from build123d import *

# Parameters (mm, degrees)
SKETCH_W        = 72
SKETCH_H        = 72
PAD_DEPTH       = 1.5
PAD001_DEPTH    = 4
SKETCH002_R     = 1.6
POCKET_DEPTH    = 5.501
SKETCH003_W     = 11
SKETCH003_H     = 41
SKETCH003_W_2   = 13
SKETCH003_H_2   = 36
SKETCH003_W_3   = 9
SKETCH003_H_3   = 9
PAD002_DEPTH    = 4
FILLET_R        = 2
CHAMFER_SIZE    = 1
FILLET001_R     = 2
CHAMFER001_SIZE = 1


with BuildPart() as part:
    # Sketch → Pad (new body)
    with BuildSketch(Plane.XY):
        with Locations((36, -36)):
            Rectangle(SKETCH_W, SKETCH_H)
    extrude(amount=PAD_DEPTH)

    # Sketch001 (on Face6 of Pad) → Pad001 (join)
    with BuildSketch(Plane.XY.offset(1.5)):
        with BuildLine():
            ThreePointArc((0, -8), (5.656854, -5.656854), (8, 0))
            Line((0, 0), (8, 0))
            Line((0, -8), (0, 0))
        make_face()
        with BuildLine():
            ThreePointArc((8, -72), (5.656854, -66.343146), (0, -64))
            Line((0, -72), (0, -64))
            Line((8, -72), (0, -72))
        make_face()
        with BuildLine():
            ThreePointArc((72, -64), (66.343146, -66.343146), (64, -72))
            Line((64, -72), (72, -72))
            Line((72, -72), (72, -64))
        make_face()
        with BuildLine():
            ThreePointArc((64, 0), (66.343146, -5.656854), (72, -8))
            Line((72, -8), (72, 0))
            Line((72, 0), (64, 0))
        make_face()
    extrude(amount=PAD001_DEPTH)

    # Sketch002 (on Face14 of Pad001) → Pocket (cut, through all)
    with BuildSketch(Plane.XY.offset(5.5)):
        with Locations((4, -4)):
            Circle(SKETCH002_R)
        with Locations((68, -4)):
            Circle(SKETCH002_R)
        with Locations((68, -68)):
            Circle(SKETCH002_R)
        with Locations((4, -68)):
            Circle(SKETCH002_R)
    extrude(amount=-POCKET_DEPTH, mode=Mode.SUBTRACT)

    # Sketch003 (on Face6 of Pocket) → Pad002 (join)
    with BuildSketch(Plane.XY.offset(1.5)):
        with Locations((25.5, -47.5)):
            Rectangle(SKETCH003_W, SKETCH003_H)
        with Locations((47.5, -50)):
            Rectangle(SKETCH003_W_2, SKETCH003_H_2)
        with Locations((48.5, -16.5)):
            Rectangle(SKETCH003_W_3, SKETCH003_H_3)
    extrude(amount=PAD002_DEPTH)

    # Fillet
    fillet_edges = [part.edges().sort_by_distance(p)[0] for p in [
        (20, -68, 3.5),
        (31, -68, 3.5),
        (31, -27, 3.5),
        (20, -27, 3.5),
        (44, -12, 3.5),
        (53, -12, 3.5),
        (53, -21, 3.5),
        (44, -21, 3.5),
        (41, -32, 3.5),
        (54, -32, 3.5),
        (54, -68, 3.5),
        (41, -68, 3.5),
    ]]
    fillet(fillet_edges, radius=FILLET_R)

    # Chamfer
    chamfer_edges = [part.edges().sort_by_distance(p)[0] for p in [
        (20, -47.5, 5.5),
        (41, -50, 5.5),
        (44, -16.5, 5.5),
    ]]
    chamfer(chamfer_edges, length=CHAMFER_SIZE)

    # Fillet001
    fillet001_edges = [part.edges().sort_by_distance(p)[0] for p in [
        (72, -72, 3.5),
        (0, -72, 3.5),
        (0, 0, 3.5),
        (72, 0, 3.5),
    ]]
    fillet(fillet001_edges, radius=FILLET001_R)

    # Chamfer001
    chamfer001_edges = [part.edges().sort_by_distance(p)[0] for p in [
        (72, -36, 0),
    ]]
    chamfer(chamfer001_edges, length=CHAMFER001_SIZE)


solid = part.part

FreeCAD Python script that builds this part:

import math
import FreeCAD as App
import Part
import Sketcher
from FreeCAD import Vector


def edges_at(feature, points):
    """Names of the edges that pass closest to the given points."""
    edges = feature.Shape.Edges
    near = lambda p: min(range(len(edges)), key=lambda i: edges[i].distToShape(Part.Vertex(*p))[0])
    return sorted({f"Edge{near(p) + 1}" for p in points})

doc = App.newDocument("Part")
body = doc.addObject("PartDesign::Body", "Body")

sketch1 = body.newObject("Sketcher::SketchObject", "Sketch")
sketch1.AttachmentSupport = (doc.getObject("XY_Plane"), [""])
sketch1.MapMode = "FlatFace"
sketch1.addGeometry(Part.LineSegment(Vector(0, 0, 0), Vector(0, -72, 0)), False)
sketch1.addGeometry(Part.LineSegment(Vector(0, -72, 0), Vector(72, -72, 0)), False)
sketch1.addGeometry(Part.LineSegment(Vector(72, -72, 0), Vector(72, 0, 0)), False)
sketch1.addGeometry(Part.LineSegment(Vector(72, 0, 0), Vector(0, 0, 0)), False)
sketch1.addConstraint(Sketcher.Constraint("Coincident", 0, 2, 1, 1))
sketch1.addConstraint(Sketcher.Constraint("Coincident", 1, 2, 2, 1))
sketch1.addConstraint(Sketcher.Constraint("Coincident", 2, 2, 3, 1))
sketch1.addConstraint(Sketcher.Constraint("Coincident", 3, 2, 0, 1))
sketch1.addConstraint(Sketcher.Constraint("Vertical", 0))
sketch1.addConstraint(Sketcher.Constraint("Horizontal", 1))
sketch1.addConstraint(Sketcher.Constraint("Vertical", 2))
sketch1.addConstraint(Sketcher.Constraint("Horizontal", 3))
sketch1.addConstraint(Sketcher.Constraint("Coincident", 3, 2, -1, 1))
sketch1.addConstraint(Sketcher.Constraint("Equal", 3, 0))
sketch1.addConstraint(Sketcher.Constraint("DistanceX", 1, 1, 1, 2, 72.0))
pad1 = body.newObject("PartDesign::Pad", "Pad")
pad1.Profile = sketch1
pad1.Length = 1.5

sketch2 = body.newObject("Sketcher::SketchObject", "Sketch001")
sketch2.AttachmentSupport = (doc.getObject("XY_Plane"), [""])
sketch2.MapMode = "FlatFace"
sketch2.AttachmentOffset = App.Placement(Vector(0, 0, 1.5), App.Rotation())
sketch2.addGeometry(Part.ArcOfCircle(Part.Circle(Vector(-0.000001, 0.000001, 0), Vector(0, 0, 1), 8.000001), math.radians(-89.999994), math.radians(-0.000006)), False)
sketch2.addGeometry(Part.LineSegment(Vector(8, 0, 0), Vector(0, 0, 0)), False)
sketch2.addGeometry(Part.LineSegment(Vector(0, 0, 0), Vector(0, -8, 0)), False)
sketch2.addGeometry(Part.ArcOfCircle(Part.Circle(Vector(-0.000001, -72.000001, 0), Vector(0, 0, 1), 8.000001), math.radians(0.000006), math.radians(89.999994)), False)
sketch2.addGeometry(Part.LineSegment(Vector(0, -64, 0), Vector(0, -72, 0)), False)
sketch2.addGeometry(Part.LineSegment(Vector(0, -72, 0), Vector(8, -72, 0)), False)
sketch2.addGeometry(Part.ArcOfCircle(Part.Circle(Vector(72.000001, -72.000001, 0), Vector(0, 0, 1), 8.000001), math.radians(90.000006), math.radians(179.999994)), False)
sketch2.addGeometry(Part.LineSegment(Vector(64, -72, 0), Vector(72, -72, 0)), False)
sketch2.addGeometry(Part.LineSegment(Vector(72, -72, 0), Vector(72, -64, 0)), False)
sketch2.addGeometry(Part.ArcOfCircle(Part.Circle(Vector(72.000001, 0.000001, 0), Vector(0, 0, 1), 8.000001), math.radians(-179.999994), math.radians(-90.000006)), False)
sketch2.addGeometry(Part.LineSegment(Vector(72, -8, 0), Vector(72, 0, 0)), False)
sketch2.addGeometry(Part.LineSegment(Vector(72, 0, 0), Vector(64, 0, 0)), False)
sketch2.addConstraint(Sketcher.Constraint("Coincident", 0, 2, 1, 1))
sketch2.addConstraint(Sketcher.Constraint("Coincident", 1, 2, 2, 1))
sketch2.addConstraint(Sketcher.Constraint("Coincident", 2, 2, 0, 1))
sketch2.addConstraint(Sketcher.Constraint("Coincident", 3, 2, 4, 1))
sketch2.addConstraint(Sketcher.Constraint("Coincident", 4, 2, 5, 1))
sketch2.addConstraint(Sketcher.Constraint("Coincident", 5, 2, 3, 1))
sketch2.addConstraint(Sketcher.Constraint("Coincident", 6, 2, 7, 1))
sketch2.addConstraint(Sketcher.Constraint("Coincident", 7, 2, 8, 1))
sketch2.addConstraint(Sketcher.Constraint("Coincident", 8, 2, 6, 1))
sketch2.addConstraint(Sketcher.Constraint("Coincident", 9, 2, 10, 1))
sketch2.addConstraint(Sketcher.Constraint("Coincident", 10, 2, 11, 1))
sketch2.addConstraint(Sketcher.Constraint("Coincident", 11, 2, 9, 1))
sketch2.addConstraint(Sketcher.Constraint("Horizontal", 1))
sketch2.addConstraint(Sketcher.Constraint("Vertical", 2))
sketch2.addConstraint(Sketcher.Constraint("Vertical", 4))
sketch2.addConstraint(Sketcher.Constraint("Horizontal", 5))
sketch2.addConstraint(Sketcher.Constraint("Horizontal", 7))
sketch2.addConstraint(Sketcher.Constraint("Vertical", 8))
sketch2.addConstraint(Sketcher.Constraint("Vertical", 10))
sketch2.addConstraint(Sketcher.Constraint("Horizontal", 11))
sketch2.addConstraint(Sketcher.Constraint("Coincident", 0, 3, -1, 1))
sketch2.addConstraint(Sketcher.Constraint("Coincident", 1, 2, -1, 1))
sketch2.addConstraint(Sketcher.Constraint("Coincident", 4, 2, 3, 3))
sketch2.addConstraint(Sketcher.Constraint("Coincident", 7, 2, 6, 3))
sketch2.addConstraint(Sketcher.Constraint("Coincident", 10, 2, 9, 3))
sketch2.addConstraint(Sketcher.Constraint("Equal", 0, 3))
sketch2.addConstraint(Sketcher.Constraint("Equal", 3, 6))
sketch2.addConstraint(Sketcher.Constraint("Equal", 6, 9))
sketch2.addConstraint(Sketcher.Constraint("PointOnObject", 3, 3, -2))
sketch2.addConstraint(Sketcher.Constraint("PointOnObject", 9, 3, -1))
sketch2.addConstraint(Sketcher.Constraint("Horizontal", 3, 3, 6, 3))
sketch2.addConstraint(Sketcher.Constraint("Vertical", 6, 3, 9, 3))
sketch2.addConstraint(Sketcher.Constraint("Radius", 0, 8.000001))
sketch2.addConstraint(Sketcher.Constraint("DistanceY", 3, 3, -1, 1, 72.000001))
sketch2.addConstraint(Sketcher.Constraint("DistanceX", -1, 1, 6, 3, 72.000001))
pad2 = body.newObject("PartDesign::Pad", "Pad001")
pad2.Profile = sketch2
pad2.Length = 4

sketch3 = body.newObject("Sketcher::SketchObject", "Sketch002")
sketch3.AttachmentSupport = (doc.getObject("XY_Plane"), [""])
sketch3.MapMode = "FlatFace"
sketch3.AttachmentOffset = App.Placement(Vector(0, 0, 5.5), App.Rotation())
sketch3.addGeometry(Part.Circle(Vector(4, -4, 0), Vector(0, 0, 1), 1.6), False)
sketch3.addGeometry(Part.Circle(Vector(68, -4, 0), Vector(0, 0, 1), 1.6), False)
sketch3.addGeometry(Part.Circle(Vector(68, -68, 0), Vector(0, 0, 1), 1.6), False)
sketch3.addGeometry(Part.Circle(Vector(4, -68, 0), Vector(0, 0, 1), 1.6), False)
sketch3.addConstraint(Sketcher.Constraint("Equal", 0, 1))
sketch3.addConstraint(Sketcher.Constraint("Equal", 1, 2))
sketch3.addConstraint(Sketcher.Constraint("Equal", 2, 3))
sketch3.addConstraint(Sketcher.Constraint("Horizontal", 0, 3, 1, 3))
sketch3.addConstraint(Sketcher.Constraint("Horizontal", 2, 3, 3, 3))
sketch3.addConstraint(Sketcher.Constraint("Vertical", 1, 3, 2, 3))
sketch3.addConstraint(Sketcher.Constraint("Vertical", 0, 3, 3, 3))
sketch3.addConstraint(Sketcher.Constraint("Diameter", 0, 3.2))
sketch3.addConstraint(Sketcher.Constraint("DistanceX", -1, 1, 0, 3, 4.0))
sketch3.addConstraint(Sketcher.Constraint("DistanceY", 0, 3, -1, 1, 4.0))
sketch3.addConstraint(Sketcher.Constraint("DistanceX", -1, 1, 1, 3, 68.0))
sketch3.addConstraint(Sketcher.Constraint("DistanceY", 2, 3, -1, 1, 68.0))
pocket1 = body.newObject("PartDesign::Pocket", "Pocket")
pocket1.Profile = sketch3
pocket1.Type = "ThroughAll"

sketch4 = body.newObject("Sketcher::SketchObject", "Sketch003")
sketch4.AttachmentSupport = (doc.getObject("XY_Plane"), [""])
sketch4.MapMode = "FlatFace"
sketch4.AttachmentOffset = App.Placement(Vector(0, 0, 1.5), App.Rotation())
sketch4.addGeometry(Part.LineSegment(Vector(20, -27, 0), Vector(20, -68, 0)), False)
sketch4.addGeometry(Part.LineSegment(Vector(20, -68, 0), Vector(31, -68, 0)), False)
sketch4.addGeometry(Part.LineSegment(Vector(31, -68, 0), Vector(31, -27, 0)), False)
sketch4.addGeometry(Part.LineSegment(Vector(31, -27, 0), Vector(20, -27, 0)), False)
sketch4.addGeometry(Part.LineSegment(Vector(41, -32, 0), Vector(41, -68, 0)), False)
sketch4.addGeometry(Part.LineSegment(Vector(41, -68, 0), Vector(54, -68, 0)), False)
sketch4.addGeometry(Part.LineSegment(Vector(54, -68, 0), Vector(54, -32, 0)), False)
sketch4.addGeometry(Part.LineSegment(Vector(54, -32, 0), Vector(41, -32, 0)), False)
sketch4.addGeometry(Part.LineSegment(Vector(44, -12, 0), Vector(44, -21, 0)), False)
sketch4.addGeometry(Part.LineSegment(Vector(44, -21, 0), Vector(53, -21, 0)), False)
sketch4.addGeometry(Part.LineSegment(Vector(53, -21, 0), Vector(53, -12, 0)), False)
sketch4.addGeometry(Part.LineSegment(Vector(53, -12, 0), Vector(44, -12, 0)), False)
sketch4.addConstraint(Sketcher.Constraint("Coincident", 0, 2, 1, 1))
sketch4.addConstraint(Sketcher.Constraint("Coincident", 1, 2, 2, 1))
sketch4.addConstraint(Sketcher.Constraint("Coincident", 2, 2, 3, 1))
sketch4.addConstraint(Sketcher.Constraint("Coincident", 3, 2, 0, 1))
sketch4.addConstraint(Sketcher.Constraint("Coincident", 4, 2, 5, 1))
sketch4.addConstraint(Sketcher.Constraint("Coincident", 5, 2, 6, 1))
sketch4.addConstraint(Sketcher.Constraint("Coincident", 6, 2, 7, 1))
sketch4.addConstraint(Sketcher.Constraint("Coincident", 7, 2, 4, 1))
sketch4.addConstraint(Sketcher.Constraint("Coincident", 8, 2, 9, 1))
sketch4.addConstraint(Sketcher.Constraint("Coincident", 9, 2, 10, 1))
sketch4.addConstraint(Sketcher.Constraint("Coincident", 10, 2, 11, 1))
sketch4.addConstraint(Sketcher.Constraint("Coincident", 11, 2, 8, 1))
sketch4.addConstraint(Sketcher.Constraint("Vertical", 0))
sketch4.addConstraint(Sketcher.Constraint("Horizontal", 1))
sketch4.addConstraint(Sketcher.Constraint("Vertical", 2))
sketch4.addConstraint(Sketcher.Constraint("Horizontal", 3))
sketch4.addConstraint(Sketcher.Constraint("Vertical", 4))
sketch4.addConstraint(Sketcher.Constraint("Horizontal", 5))
sketch4.addConstraint(Sketcher.Constraint("Vertical", 6))
sketch4.addConstraint(Sketcher.Constraint("Horizontal", 7))
sketch4.addConstraint(Sketcher.Constraint("Vertical", 8))
sketch4.addConstraint(Sketcher.Constraint("Horizontal", 9))
sketch4.addConstraint(Sketcher.Constraint("Vertical", 10))
sketch4.addConstraint(Sketcher.Constraint("Horizontal", 11))
sketch4.addConstraint(Sketcher.Constraint("Horizontal", 1, 2, 4, 2))
sketch4.addConstraint(Sketcher.Constraint("Equal", 11, 8))
sketch4.addConstraint(Sketcher.Constraint("DistanceX", 1, 1, 1, 2, 11.0))
sketch4.addConstraint(Sketcher.Constraint("DistanceX", 5, 1, 5, 2, 13.0))
sketch4.addConstraint(Sketcher.Constraint("DistanceX", 9, 1, 9, 2, 9.0))
sketch4.addConstraint(Sketcher.Constraint("DistanceY", 0, 2, 0, 1, 41.0))
sketch4.addConstraint(Sketcher.Constraint("DistanceY", 4, 2, 4, 1, 36.0))
sketch4.addConstraint(Sketcher.Constraint("DistanceX", -1, 1, 0, 2, 20.0))
sketch4.addConstraint(Sketcher.Constraint("DistanceY", 0, 2, -1, 1, 68.0))
sketch4.addConstraint(Sketcher.Constraint("DistanceX", -1, 1, 4, 2, 41.0))
sketch4.addConstraint(Sketcher.Constraint("DistanceX", -1, 1, 8, 2, 44.0))
sketch4.addConstraint(Sketcher.Constraint("DistanceY", 8, 2, -1, 1, 21.0))
pad3 = body.newObject("PartDesign::Pad", "Pad002")
pad3.Profile = sketch4
pad3.Length = 4
doc.recompute()

fillet = body.newObject("PartDesign::Fillet", "Fillet")
fillet.Base = (pad3, edges_at(pad3, [
    (20, -68, 3.5),
    (31, -68, 3.5),
    (31, -27, 3.5),
    (20, -27, 3.5),
    (44, -12, 3.5),
    (53, -12, 3.5),
    (53, -21, 3.5),
    (44, -21, 3.5),
    (41, -32, 3.5),
    (54, -32, 3.5),
    (54, -68, 3.5),
    (41, -68, 3.5),
]))
fillet.Radius = 2
doc.recompute()

chamfer = body.newObject("PartDesign::Chamfer", "Chamfer")
chamfer.Base = (fillet, edges_at(fillet, [(20, -47.5, 5.5), (41, -50, 5.5), (44, -16.5, 5.5)]))
chamfer.Size = 1
doc.recompute()

fillet2 = body.newObject("PartDesign::Fillet", "Fillet001")
fillet2.Base = (chamfer, edges_at(chamfer, [
    (72, -72, 2.75),
    (0, -72, 2.75),
    (0, 0, 2.75),
    (72, 0, 2.75),
]))
fillet2.Radius = 2
doc.recompute()

chamfer2 = body.newObject("PartDesign::Chamfer", "Chamfer001")
chamfer2.Base = (fillet2, edges_at(fillet2, [(72, -36, 0)]))
chamfer2.Size = 1

doc.recompute()
